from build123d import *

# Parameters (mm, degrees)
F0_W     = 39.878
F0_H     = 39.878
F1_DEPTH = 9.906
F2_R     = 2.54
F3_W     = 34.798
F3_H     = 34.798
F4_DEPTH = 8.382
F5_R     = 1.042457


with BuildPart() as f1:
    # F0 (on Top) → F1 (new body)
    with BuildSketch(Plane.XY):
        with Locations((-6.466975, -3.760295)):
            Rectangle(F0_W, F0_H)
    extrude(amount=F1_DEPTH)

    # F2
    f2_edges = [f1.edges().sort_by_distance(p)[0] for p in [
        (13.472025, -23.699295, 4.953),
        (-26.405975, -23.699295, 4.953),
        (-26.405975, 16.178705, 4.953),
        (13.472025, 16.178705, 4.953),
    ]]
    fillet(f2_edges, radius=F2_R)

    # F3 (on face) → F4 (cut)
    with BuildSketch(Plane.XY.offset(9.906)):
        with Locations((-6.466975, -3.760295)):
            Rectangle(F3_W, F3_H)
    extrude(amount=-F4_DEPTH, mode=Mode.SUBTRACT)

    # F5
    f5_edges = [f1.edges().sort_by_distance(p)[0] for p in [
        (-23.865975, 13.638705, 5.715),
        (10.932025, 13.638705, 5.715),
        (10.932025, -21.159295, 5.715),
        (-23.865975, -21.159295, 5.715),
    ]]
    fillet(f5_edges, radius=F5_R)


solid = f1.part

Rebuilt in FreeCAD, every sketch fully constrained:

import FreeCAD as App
import Part
import Sketcher

V = App.Vector
Q = App.Units.Quantity


def edges_at(feature, points):
    """Names of the edges that pass closest to the given points."""
    edges = feature.Shape.Edges
    near = lambda p: min(range(len(edges)), key=lambda i: edges[i].distToShape(Part.Vertex(*p))[0])
    return sorted({f"Edge{near(p) + 1}" for p in points})


def add_polygon(sketch, points):
    """Adds a closed chain of lines whose ends are joined by coincident constraints."""
    first, n = sketch.GeometryCount, len(points)
    for a, b in zip(points, points[1:] + points[:1]):
        sketch.addGeometry(Part.LineSegment(App.Vector(*a, 0), App.Vector(*b, 0)), False)
    for i in range(n):
        sketch.addConstraint(Sketcher.Constraint("Coincident", first + i, 2, first + (i + 1) % n, 1))

doc = App.newDocument("Part")
body = doc.addObject("PartDesign::Body", "Body")

# Sketch on XY plane
sketch1 = body.newObject("Sketcher::SketchObject", "Sketch")
sketch1.AttachmentSupport = (doc.getObject("XY_Plane"), [""])
sketch1.MapMode = "FlatFace"
add_polygon(sketch1, [(-26, 16), (-26, -24), (13, -24), (13, 16)])  # lines 0-3
sketch1.addConstraint(Sketcher.Constraint("Vertical", 0))
sketch1.addConstraint(Sketcher.Constraint("Horizontal", 1))
sketch1.addConstraint(Sketcher.Constraint("Vertical", 2))
sketch1.addConstraint(Sketcher.Constraint("Horizontal", 3))
sketch1.addConstraint(Sketcher.Constraint("Equal", 3, 0))
sketch1.addConstraint(Sketcher.Constraint("DistanceX", 1, 1, 1, 2, Q("1.57 in")))
sketch1.addConstraint(Sketcher.Constraint("DistanceX", 0, 2, -1, 1, 26.405975))
sketch1.addConstraint(Sketcher.Constraint("DistanceY", 0, 2, -1, 1, 23.699295))
pad1 = body.newObject("PartDesign::Pad", "Pad")
pad1.Profile = sketch1
pad1.Length = Q("0.39 in")
doc.recompute()

fillet = body.newObject("PartDesign::Fillet", "Fillet")
fillet.Base = (pad1, edges_at(pad1, [
    (13.472, -23.699, 4.953),
    (-26.406, -23.699, 4.953),
    (-26.406, 16.179, 4.953),
    (13.472, 16.179, 4.953),
]))
fillet.Radius = Q("0.1 in")

# Sketch on XY plane
sketch2 = body.newObject("Sketcher::SketchObject", "Sketch001")
sketch2.AttachmentSupport = (doc.getObject("XY_Plane"), [""])
sketch2.MapMode = "FlatFace"
sketch2.AttachmentOffset = App.Placement(V(0, 0, 0.39 * 25.4), App.Rotation())
add_polygon(sketch2, [(-24, 14), (-24, -21), (11, -21), (11, 14)])  # lines 0-3
sketch2.addConstraint(Sketcher.Constraint("Vertical", 0))
sketch2.addConstraint(Sketcher.Constraint("Horizontal", 1))
sketch2.addConstraint(Sketcher.Constraint("Vertical", 2))
sketch2.addConstraint(Sketcher.Constraint("Horizontal", 3))
sketch2.addConstraint(Sketcher.Constraint("Equal", 3, 0))
sketch2.addConstraint(Sketcher.Constraint("DistanceX", 1, 1, 1, 2, Q("1.37 in")))
sketch2.addConstraint(Sketcher.Constraint("DistanceX", 0, 2, -1, 1, 23.865975))
sketch2.addConstraint(Sketcher.Constraint("DistanceY", 0, 2, -1, 1, 21.159295))
pocket1 = body.newObject("PartDesign::Pocket", "Pocket")
pocket1.Profile = sketch2
pocket1.Length = Q("0.33 in")
doc.recompute()

fillet2 = body.newObject("PartDesign::Fillet", "Fillet001")
fillet2.Base = (pocket1, edges_at(pocket1, [
    (-23.866, 13.639, 5.715),
    (10.932, 13.639, 5.715),
    (10.932, -21.159, 5.715),
    (-23.866, -21.159, 5.715),
]))
fillet2.Radius = 1.042457

doc.recompute()
